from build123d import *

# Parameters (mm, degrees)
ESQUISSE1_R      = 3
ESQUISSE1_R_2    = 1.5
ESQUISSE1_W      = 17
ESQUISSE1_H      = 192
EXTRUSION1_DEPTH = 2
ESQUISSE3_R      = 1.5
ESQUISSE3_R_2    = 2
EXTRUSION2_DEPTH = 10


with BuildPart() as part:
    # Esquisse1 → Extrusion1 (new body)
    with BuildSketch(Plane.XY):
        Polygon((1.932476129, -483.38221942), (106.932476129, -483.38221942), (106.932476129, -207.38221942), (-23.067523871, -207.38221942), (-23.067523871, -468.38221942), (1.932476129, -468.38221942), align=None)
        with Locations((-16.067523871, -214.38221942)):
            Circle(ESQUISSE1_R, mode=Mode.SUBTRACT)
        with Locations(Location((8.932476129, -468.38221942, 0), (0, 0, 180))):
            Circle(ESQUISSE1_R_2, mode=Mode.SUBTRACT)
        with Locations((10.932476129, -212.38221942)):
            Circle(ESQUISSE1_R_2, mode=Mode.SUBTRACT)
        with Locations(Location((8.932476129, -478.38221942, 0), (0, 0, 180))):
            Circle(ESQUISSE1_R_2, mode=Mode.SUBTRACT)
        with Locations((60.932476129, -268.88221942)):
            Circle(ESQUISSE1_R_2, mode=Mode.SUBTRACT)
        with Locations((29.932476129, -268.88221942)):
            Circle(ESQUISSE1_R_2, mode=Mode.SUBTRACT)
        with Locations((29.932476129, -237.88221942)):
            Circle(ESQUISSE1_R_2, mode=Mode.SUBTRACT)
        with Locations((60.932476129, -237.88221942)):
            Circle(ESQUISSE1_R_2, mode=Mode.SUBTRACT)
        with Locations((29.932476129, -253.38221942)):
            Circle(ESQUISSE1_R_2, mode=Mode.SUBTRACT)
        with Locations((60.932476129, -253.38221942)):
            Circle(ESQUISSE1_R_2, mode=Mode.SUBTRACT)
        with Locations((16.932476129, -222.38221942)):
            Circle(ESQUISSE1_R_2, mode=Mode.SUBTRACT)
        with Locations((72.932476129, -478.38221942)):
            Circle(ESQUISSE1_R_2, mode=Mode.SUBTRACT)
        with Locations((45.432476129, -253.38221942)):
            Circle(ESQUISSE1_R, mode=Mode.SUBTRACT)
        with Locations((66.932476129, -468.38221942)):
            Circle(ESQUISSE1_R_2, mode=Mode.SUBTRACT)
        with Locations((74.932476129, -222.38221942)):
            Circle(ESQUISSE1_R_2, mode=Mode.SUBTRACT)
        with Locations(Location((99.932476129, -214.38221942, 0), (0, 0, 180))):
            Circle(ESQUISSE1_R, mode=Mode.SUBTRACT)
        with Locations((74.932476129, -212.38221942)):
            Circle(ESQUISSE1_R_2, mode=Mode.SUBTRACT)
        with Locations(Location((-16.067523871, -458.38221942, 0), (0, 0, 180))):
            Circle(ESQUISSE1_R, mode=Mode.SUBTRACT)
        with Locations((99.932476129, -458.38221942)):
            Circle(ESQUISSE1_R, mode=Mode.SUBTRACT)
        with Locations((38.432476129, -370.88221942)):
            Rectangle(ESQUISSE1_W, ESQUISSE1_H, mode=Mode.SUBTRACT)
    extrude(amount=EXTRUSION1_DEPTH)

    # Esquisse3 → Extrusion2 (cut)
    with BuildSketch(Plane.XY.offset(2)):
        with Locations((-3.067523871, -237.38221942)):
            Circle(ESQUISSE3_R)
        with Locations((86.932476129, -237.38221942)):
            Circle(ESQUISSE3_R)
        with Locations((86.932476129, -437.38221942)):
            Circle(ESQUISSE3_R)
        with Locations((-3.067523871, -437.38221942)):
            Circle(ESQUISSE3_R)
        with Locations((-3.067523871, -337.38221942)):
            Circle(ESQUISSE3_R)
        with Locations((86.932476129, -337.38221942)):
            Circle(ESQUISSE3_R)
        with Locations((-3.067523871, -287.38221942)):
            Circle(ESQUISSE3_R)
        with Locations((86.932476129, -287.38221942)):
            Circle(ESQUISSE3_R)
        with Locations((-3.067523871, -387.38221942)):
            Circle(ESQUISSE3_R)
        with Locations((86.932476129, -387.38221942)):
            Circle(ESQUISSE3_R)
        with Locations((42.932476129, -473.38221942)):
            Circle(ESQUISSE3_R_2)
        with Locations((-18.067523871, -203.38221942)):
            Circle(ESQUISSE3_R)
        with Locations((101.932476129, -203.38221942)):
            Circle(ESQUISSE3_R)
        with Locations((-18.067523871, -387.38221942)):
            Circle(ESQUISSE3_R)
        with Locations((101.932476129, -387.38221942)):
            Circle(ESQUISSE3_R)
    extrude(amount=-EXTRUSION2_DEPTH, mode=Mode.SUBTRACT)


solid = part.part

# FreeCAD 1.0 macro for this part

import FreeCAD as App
import Part
import Sketcher

V = App.Vector


def add_polygon(sketch, points):
    """Adds a closed chain of lines whose ends are joined by coincident constraints."""
    first, n = sketch.GeometryCount, len(points)
    for a, b in zip(points, points[1:] + points[:1]):
        sketch.addGeometry(Part.LineSegment(App.Vector(*a, 0), App.Vector(*b, 0)), False)
    for i in range(n):
        sketch.addConstraint(Sketcher.Constraint("Coincident", first + i, 2, first + (i + 1) % n, 1))

doc = App.newDocument("Part")
body = doc.addObject("PartDesign::Body", "Body")

# Sketch on XY plane
sketch1 = doc.addObject("Sketcher::SketchObject", "Sketch")
body.addObject(sketch1)
sketch1.AttachmentSupport = (doc.XY_Plane, [""])
sketch1.MapMode = "FlatFace"
add_polygon(sketch1, [(1.9, -483.4), (106.9, -483.4), (106.9, -207.4), (-23.1, -207.4), (-23.1, -468.4), (1.9, -468.4)])  # lines 0-5
sketch1.addGeometry(Part.Circle(V(-16.1, -458.4, 0), V(0, 0, 1), 3), False)  # 6
sketch1.addGeometry(Part.Circle(V(8.9, -478.4, 0), V(0, 0, 1), 1.5), False)  # 7
sketch1.addGeometry(Part.Circle(V(8.9, -468.4, 0), V(0, 0, 1), 1.5), False)  # 8
add_polygon(sketch1, [(46.9, -466.9), (29.9, -466.9), (29.9, -274.9), (46.9, -274.9)])  # lines 9-12
sketch1.addGeometry(Part.Circle(V(66.9, -468.4, 0), V(0, 0, 1), 1.5), False)  # 13
sketch1.addGeometry(Part.Circle(V(72.9, -478.4, 0), V(0, 0, 1), 1.5), False)  # 14
sketch1.addGeometry(Part.Circle(V(99.9, -458.4, 0), V(0, 0, 1), 3), False)  # 15
sketch1.addGeometry(Part.Circle(V(-16.1, -214.4, 0), V(0, 0, 1), 3), False)  # 16
sketch1.addGeometry(Part.Circle(V(10.9, -212.4, 0), V(0, 0, 1), 1.5), False)  # 17
sketch1.addGeometry(Part.Circle(V(29.9, -268.9, 0), V(0, 0, 1), 1.5), False)  # 18
sketch1.addGeometry(Part.Circle(V(29.9, -253.4, 0), V(0, 0, 1), 1.5), False)  # 19
sketch1.addGeometry(Part.Circle(V(16.9, -222.4, 0), V(0, 0, 1), 1.5), False)  # 20
sketch1.addGeometry(Part.Circle(V(29.9, -237.9, 0), V(0, 0, 1), 1.5), False)  # 21
sketch1.addGeometry(Part.Circle(V(45.4, -253.4, 0), V(0, 0, 1), 3), False)  # 22
sketch1.addGeometry(Part.Circle(V(60.9, -268.9, 0), V(0, 0, 1), 1.5), False)  # 23
sketch1.addGeometry(Part.Circle(V(60.9, -253.4, 0), V(0, 0, 1), 1.5), False)  # 24
sketch1.addGeometry(Part.Circle(V(60.9, -237.9, 0), V(0, 0, 1), 1.5), False)  # 25
sketch1.addGeometry(Part.Circle(V(74.9, -222.4, 0), V(0, 0, 1), 1.5), False)  # 26
sketch1.addGeometry(Part.Circle(V(74.9, -212.4, 0), V(0, 0, 1), 1.5), False)  # 27
sketch1.addGeometry(Part.Circle(V(99.9, -214.4, 0), V(0, 0, 1), 3), False)  # 28
sketch1.addConstraint([
    Sketcher.Constraint("Horizontal", 0),
    Sketcher.Constraint("Vertical", 1),
    Sketcher.Constraint("Horizontal", 2),
    Sketcher.Constraint("Vertical", 3),
    Sketcher.Constraint("Horizontal", 4),
    Sketcher.Constraint("Vertical", 5),
    Sketcher.Constraint("Horizontal", 9),
    Sketcher.Constraint("Vertical", 10),
    Sketcher.Constraint("Horizontal", 11),
    Sketcher.Constraint("Vertical", 12),
    Sketcher.Constraint("Equal", 7, 8),
    Sketcher.Constraint("Equal", 8, 13),
    Sketcher.Constraint("Equal", 13, 14),
    Sketcher.Constraint("Equal", 6, 15),
    Sketcher.Constraint("Equal", 15, 16),
    Sketcher.Constraint("Equal", 14, 17),
    Sketcher.Constraint("Equal", 17, 18),
    Sketcher.Constraint("Equal", 18, 19),
    Sketcher.Constraint("Equal", 19, 20),
    Sketcher.Constraint("Equal", 20, 21),
    Sketcher.Constraint("Equal", 16, 22),
    Sketcher.Constraint("Equal", 21, 23),
    Sketcher.Constraint("Equal", 23, 24),
    Sketcher.Constraint("Equal", 24, 25),
    Sketcher.Constraint("Equal", 25, 26),
    Sketcher.Constraint("Equal", 26, 27),
    Sketcher.Constraint("Equal", 22, 28),
    Sketcher.Constraint("Horizontal", 8, 3, 13, 3),
    Sketcher.Constraint("Horizontal", 7, 3, 14, 3),
    Sketcher.Constraint("Horizontal", 6, 3, 15, 3),
    Sketcher.Constraint("Horizontal", 19, 3, 22, 3),
    Sketcher.Constraint("Horizontal", 18, 3, 23, 3),
    Sketcher.Constraint("Horizontal", 22, 3, 24, 3),
    Sketcher.Constraint("Horizontal", 21, 3, 25, 3),
    Sketcher.Constraint("Horizontal", 20, 3, 26, 3),
    Sketcher.Constraint("Horizontal", 17, 3, 27, 3),
    Sketcher.Constraint("Horizontal", 16, 3, 28, 3),
    Sketcher.Constraint("Horizontal", 13, 3, 3, 2),
    Sketcher.Constraint("Vertical", 7, 3, 8, 3),
    Sketcher.Constraint("Vertical", 6, 3, 16, 3),
    Sketcher.Constraint("Vertical", 18, 3, 19, 3),
    Sketcher.Constraint("Vertical", 19, 3, 21, 3),
    Sketcher.Constraint("Vertical", 23, 3, 24, 3),
    Sketcher.Constraint("Vertical", 24, 3, 25, 3),
    Sketcher.Constraint("Vertical", 26, 3, 27, 3),
    Sketcher.Constraint("Vertical", 15, 3, 28, 3),
    Sketcher.Constraint("Vertical", 21, 3, 9, 2),
    Sketcher.Constraint("Diameter", 6, 6.0),
    Sketcher.Constraint("Diameter", 7, 3.0),
    Sketcher.Constraint("DistanceX", 0, 1, 0, 2, 105.0),
    Sketcher.Constraint("DistanceX", 2, 2, 2, 1, 130.0),
    Sketcher.Constraint("DistanceX", 9, 2, 9, 1, 17.0),
    Sketcher.Constraint("DistanceY", 1, 1, 1, 2, 276.0),
    Sketcher.Constraint("DistanceY", 3, 2, 3, 1, 261.0),
    Sketcher.Constraint("DistanceY", 10, 1, 10, 2, 192.0),
    Sketcher.Constraint("DistanceX", 6, 3, 7, 3, 25.0),
    Sketcher.Constraint("DistanceY", 7, 3, 6, 3, 20.0),
    Sketcher.Constraint("DistanceY", 7, 3, 8, 3, 10.0),
    Sketcher.Constraint("DistanceX", 8, 3, 13, 3, 58.0),
    Sketcher.Constraint("DistanceX", 13, 3, 14, 3, 6.0),
    Sketcher.Constraint("DistanceX", 14, 3, 15, 3, 27.0),
    Sketcher.Constraint("DistanceY", 6, 3, 16, 3, 244.0),
    Sketcher.Constraint("DistanceX", 16, 3, 17, 3, 27.0),
    Sketcher.Constraint("DistanceY", 16, 3, 17, 3, 2.0),
    Sketcher.Constraint("DistanceX", 17, 3, 18, 3, 19.0),
    Sketcher.Constraint("DistanceY", 19, 3, 17, 3, 41.0),
    Sketcher.Constraint("DistanceX", 17, 3, 20, 3, 6.0),
    Sketcher.Constraint("DistanceY", 20, 3, 17, 3, 10.0),
    Sketcher.Constraint("DistanceY", 18, 3, 21, 3, 31.0),
    Sketcher.Constraint("DistanceX", 18, 3, 23, 3, 31.0),
    Sketcher.Constraint("DistanceX", 25, 3, 26, 3, 14.0),
    Sketcher.Constraint("DistanceX", 15, 3, 0, 2, 7.0),
    Sketcher.Constraint("DistanceY", 10, 2, 18, 3, 6.0),
    Sketcher.Constraint("DistanceY", 18, 3, 17, 3, 56.5),
    Sketcher.Constraint("DistanceX", 19, 3, 22, 3, 15.5),
    Sketcher.Constraint("DistanceY", 6, 3, -1, 1, 458.382219),
    Sketcher.Constraint("DistanceX", 6, 3, -1, 1, 16.067524),
])
pad1 = doc.addObject("PartDesign::Pad", "Pad")
body.addObject(pad1)
pad1.Profile = sketch1
pad1.Length = 2

# Sketch on XY plane
sketch2 = doc.addObject("Sketcher::SketchObject", "Sketch001")
body.addObject(sketch2)
sketch2.AttachmentSupport = (doc.XY_Plane, [""])
sketch2.MapMode = "FlatFace"
sketch2.AttachmentOffset = App.Placement(V(0, 0, 2), App.Rotation())
sketch2.addGeometry([
    Part.Circle(V(-3.1, -237.4, 0), V(0, 0, 1), 1.5),  # 0
    Part.Circle(V(86.9, -237.4, 0), V(0, 0, 1), 1.5),  # 1
    Part.Circle(V(86.9, -437.4, 0), V(0, 0, 1), 1.5),  # 2
    Part.Circle(V(-3.1, -437.4, 0), V(0, 0, 1), 1.5),  # 3
    Part.Circle(V(-3.1, -337.4, 0), V(0, 0, 1), 1.5),  # 4
    Part.Circle(V(86.9, -337.4, 0), V(0, 0, 1), 1.5),  # 5
    Part.Circle(V(-3.1, -287.4, 0), V(0, 0, 1), 1.5),  # 6
    Part.Circle(V(86.9, -287.4, 0), V(0, 0, 1), 1.5),  # 7
    Part.Circle(V(-3.1, -387.4, 0), V(0, 0, 1), 1.5),  # 8
    Part.Circle(V(86.9, -387.4, 0), V(0, 0, 1), 1.5),  # 9
    Part.Circle(V(42.9, -473.4, 0), V(0, 0, 1), 2),  # 10
    Part.Circle(V(-18.1, -203.4, 0), V(0, 0, 1), 1.5),  # 11
    Part.Circle(V(101.9, -203.4, 0), V(0, 0, 1), 1.5),  # 12
    Part.Circle(V(-18.1, -387.4, 0), V(0, 0, 1), 1.5),  # 13
    Part.Circle(V(101.9, -387.4, 0), V(0, 0, 1), 1.5),  # 14
], False)
sketch2.addConstraint([
    Sketcher.Constraint("Equal", 0, 1),
    Sketcher.Constraint("Equal", 1, 2),
    Sketcher.Constraint("Equal", 2, 3),
    Sketcher.Constraint("Equal", 3, 4),
    Sketcher.Constraint("Equal", 4, 5),
    Sketcher.Constraint("Equal", 5, 6),
    Sketcher.Constraint("Equal", 6, 7),
    Sketcher.Constraint("Equal", 7, 8),
    Sketcher.Constraint("Equal", 8, 9),
    Sketcher.Constraint("Equal", 9, 11),
    Sketcher.Constraint("Equal", 11, 12),
    Sketcher.Constraint("Equal", 12, 13),
    Sketcher.Constraint("Equal", 13, 14),
    Sketcher.Constraint("Horizontal", 0, 3, 1, 3),
    Sketcher.Constraint("Horizontal", 2, 3, 3, 3),
    Sketcher.Constraint("Horizontal", 4, 3, 5, 3),
    Sketcher.Constraint("Horizontal", 6, 3, 7, 3),
    Sketcher.Constraint("Horizontal", 8, 3, 9, 3),
    Sketcher.Constraint("Horizontal", 11, 3, 12, 3),
    Sketcher.Constraint("Horizontal", 9, 3, 13, 3),
    Sketcher.Constraint("Horizontal", 13, 3, 14, 3),
    Sketcher.Constraint("Vertical", 1, 3, 2, 3),
    Sketcher.Constraint("Vertical", 0, 3, 3, 3),
    Sketcher.Constraint("Vertical", 3, 3, 4, 3),
    Sketcher.Constraint("Vertical", 2, 3, 5, 3),
    Sketcher.Constraint("Vertical", 4, 3, 6, 3),
    Sketcher.Constraint("Vertical", 5, 3, 7, 3),
    Sketcher.Constraint("Vertical", 6, 3, 8, 3),
    Sketcher.Constraint("Vertical", 7, 3, 9, 3),
    Sketcher.Constraint("Vertical", 11, 3, 13, 3),
    Sketcher.Constraint("Vertical", 12, 3, 14, 3),
    Sketcher.Constraint("Diameter", 0, 3.0),
    Sketcher.Constraint("Diameter", 10, 4.0),
    Sketcher.Constraint("DistanceX", 0, 3, 1, 3, 90.0),
    Sketcher.Constraint("DistanceY", 2, 3, 1, 3, 200.0),
    Sketcher.Constraint("DistanceY", 4, 3, 0, 3, 100.0),
    Sketcher.Constraint("DistanceY", 6, 3, 0, 3, 50.0),
    Sketcher.Constraint("DistanceY", 3, 3, 8, 3, 50.0),
    Sketcher.Constraint("DistanceX", 10, 3, 2, 3, 44.0),
    Sketcher.Constraint("DistanceY", 10, 3, 2, 3, 36.0),
    Sketcher.Constraint("DistanceX", 11, 3, 0, 3, 15.0),
    Sketcher.Constraint("DistanceY", 0, 3, 11, 3, 34.0),
    Sketcher.Constraint("DistanceX", 1, 3, 12, 3, 15.0),
    Sketcher.Constraint("DistanceY", 0, 3, -1, 1, 237.382219),
    Sketcher.Constraint("DistanceX", 0, 3, -1, 1, 3.067524),
])
pocket1 = doc.addObject("PartDesign::Pocket", "Pocket")
body.addObject(pocket1)
pocket1.Profile = sketch2
pocket1.Length = 10

doc.recompute()
